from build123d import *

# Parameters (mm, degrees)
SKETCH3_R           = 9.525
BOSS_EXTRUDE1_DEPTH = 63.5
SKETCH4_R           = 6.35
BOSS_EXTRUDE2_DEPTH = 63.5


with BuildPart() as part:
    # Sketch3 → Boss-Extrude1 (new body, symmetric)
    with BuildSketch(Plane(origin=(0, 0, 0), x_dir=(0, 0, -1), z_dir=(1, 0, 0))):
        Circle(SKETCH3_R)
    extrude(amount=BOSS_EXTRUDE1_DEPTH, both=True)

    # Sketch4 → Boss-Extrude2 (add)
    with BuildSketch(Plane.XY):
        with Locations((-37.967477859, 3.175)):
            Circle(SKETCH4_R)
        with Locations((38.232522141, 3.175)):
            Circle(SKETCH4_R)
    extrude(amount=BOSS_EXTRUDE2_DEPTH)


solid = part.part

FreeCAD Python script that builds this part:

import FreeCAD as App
import Part
import Sketcher
Q = App.Units.Quantity

doc = App.newDocument("Part")
body = doc.addObject("PartDesign::Body", "Body")

# Sketch on YZ plane
sketch1 = doc.addObject("Sketcher::SketchObject", "Sketch")
body.addObject(sketch1)
sketch1.AttachmentSupport = (doc.YZ_Plane, [""])
sketch1.MapMode = "FlatFace"
sketch1.addGeometry(Part.Circle(App.Vector(0, 0, 0), App.Vector(0, 0, 1), 10), False)
sketch1.addConstraint([
    Sketcher.Constraint("Coincident", 0, 3, -1, 1),
    Sketcher.Constraint("Diameter", 0, Q("0.75 in")),
])
pad1 = doc.addObject("PartDesign::Pad", "Pad")
body.addObject(pad1)
pad1.Profile = sketch1
pad1.Length = Q("5 in")
pad1.Midplane = True

# Sketch on XY plane
sketch2 = doc.addObject("Sketcher::SketchObject", "Sketch001")
body.addObject(sketch2)
sketch2.AttachmentSupport = (doc.XY_Plane, [""])
sketch2.MapMode = "FlatFace"
sketch2.addGeometry([
    Part.Circle(App.Vector(-38, 3, 0), App.Vector(0, 0, 1), 6),
    Part.Circle(App.Vector(38, 3, 0), App.Vector(0, 0, 1), 6),
], False)
sketch2.addConstraint([
    Sketcher.Constraint("Equal", 0, 1),
    Sketcher.Constraint("Horizontal", 0, 3, 1, 3),
    Sketcher.Constraint("Diameter", 0, Q("0.5 in")),
    Sketcher.Constraint("DistanceX", 0, 3, 1, 3, Q("3 in")),
    Sketcher.Constraint("DistanceY", -1, 1, 0, 3, Q("0.125 in")),
    Sketcher.Constraint("DistanceX", 0, 3, -1, 1, 37.967478),
])
pad2 = doc.addObject("PartDesign::Pad", "Pad001")
body.addObject(pad2)
pad2.Profile = sketch2
pad2.Length = Q("2.5 in")

doc.recompute()
